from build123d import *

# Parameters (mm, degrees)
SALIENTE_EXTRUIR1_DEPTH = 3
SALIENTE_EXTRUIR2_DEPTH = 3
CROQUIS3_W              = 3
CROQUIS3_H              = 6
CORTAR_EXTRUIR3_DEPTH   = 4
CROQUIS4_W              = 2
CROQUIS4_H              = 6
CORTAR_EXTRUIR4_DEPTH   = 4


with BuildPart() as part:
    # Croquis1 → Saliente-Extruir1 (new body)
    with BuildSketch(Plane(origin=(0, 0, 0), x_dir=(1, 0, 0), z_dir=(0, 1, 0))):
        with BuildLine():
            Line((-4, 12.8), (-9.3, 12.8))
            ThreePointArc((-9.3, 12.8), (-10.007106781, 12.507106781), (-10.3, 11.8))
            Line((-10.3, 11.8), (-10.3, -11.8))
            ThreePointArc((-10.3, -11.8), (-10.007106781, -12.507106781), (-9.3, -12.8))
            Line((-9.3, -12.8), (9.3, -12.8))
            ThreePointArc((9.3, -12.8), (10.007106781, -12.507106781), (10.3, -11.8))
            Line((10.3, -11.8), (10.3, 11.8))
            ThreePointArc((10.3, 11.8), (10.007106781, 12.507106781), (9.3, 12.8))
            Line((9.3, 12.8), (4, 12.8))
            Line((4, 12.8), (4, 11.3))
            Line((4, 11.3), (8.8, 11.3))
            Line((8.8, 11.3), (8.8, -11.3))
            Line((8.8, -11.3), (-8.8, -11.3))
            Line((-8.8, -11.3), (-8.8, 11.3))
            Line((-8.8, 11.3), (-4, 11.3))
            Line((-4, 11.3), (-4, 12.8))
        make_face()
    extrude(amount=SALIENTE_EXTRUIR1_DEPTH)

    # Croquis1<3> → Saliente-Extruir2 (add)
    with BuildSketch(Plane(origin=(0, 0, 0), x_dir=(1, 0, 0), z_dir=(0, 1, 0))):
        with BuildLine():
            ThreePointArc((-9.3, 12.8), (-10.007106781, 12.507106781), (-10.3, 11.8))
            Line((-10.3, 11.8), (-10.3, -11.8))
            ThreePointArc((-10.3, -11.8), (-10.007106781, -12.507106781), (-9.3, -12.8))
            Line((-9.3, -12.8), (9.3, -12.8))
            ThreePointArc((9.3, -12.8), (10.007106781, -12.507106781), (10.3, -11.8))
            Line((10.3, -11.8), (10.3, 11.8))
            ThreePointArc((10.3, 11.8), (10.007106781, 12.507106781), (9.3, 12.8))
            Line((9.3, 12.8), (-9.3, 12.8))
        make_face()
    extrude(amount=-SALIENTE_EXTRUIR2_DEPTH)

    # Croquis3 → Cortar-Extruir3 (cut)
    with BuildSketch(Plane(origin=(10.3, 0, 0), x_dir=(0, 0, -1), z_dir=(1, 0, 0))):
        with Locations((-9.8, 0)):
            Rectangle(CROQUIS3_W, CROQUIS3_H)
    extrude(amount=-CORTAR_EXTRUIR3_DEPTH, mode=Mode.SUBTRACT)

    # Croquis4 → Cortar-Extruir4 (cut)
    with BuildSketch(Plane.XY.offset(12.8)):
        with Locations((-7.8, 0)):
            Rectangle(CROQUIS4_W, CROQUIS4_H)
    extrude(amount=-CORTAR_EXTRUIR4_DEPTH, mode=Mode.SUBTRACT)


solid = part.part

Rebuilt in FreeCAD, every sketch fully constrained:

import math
import FreeCAD as App
import Part
import Sketcher
from FreeCAD import Vector


def add_polygon(sketch, points):
    """Adds a closed chain of lines whose ends are joined by coincident constraints."""
    first, n = sketch.GeometryCount, len(points)
    for a, b in zip(points, points[1:] + points[:1]):
        sketch.addGeometry(Part.LineSegment(App.Vector(*a, 0), App.Vector(*b, 0)), False)
    for i in range(n):
        sketch.addConstraint(Sketcher.Constraint("Coincident", first + i, 2, first + (i + 1) % n, 1))

doc = App.newDocument("Part")
body = doc.addObject("PartDesign::Body", "Body")

# Sketch on XZ plane
sketch1 = body.newObject("Sketcher::SketchObject", "Sketch")
sketch1.AttachmentSupport = (doc.getObject("XZ_Plane"), [""])
sketch1.MapMode = "FlatFace"
sketch1.addGeometry([
    Part.LineSegment(Vector(-4, -12.8, 0), Vector(-9.3, -12.8, 0)),  # 0
    Part.ArcOfCircle(Part.Circle(Vector(-9.3, -11.8, 0), Vector(0, 0, 1), 1), math.radians(-180), math.radians(-90)),  # 1
    Part.LineSegment(Vector(-10.3, -11.8, 0), Vector(-10.3, 11.8, 0)),  # 2
    Part.ArcOfCircle(Part.Circle(Vector(-9.3, 11.8, 0), Vector(0, 0, 1), 1), math.radians(90), math.radians(180)),  # 3
    Part.LineSegment(Vector(-9.3, 12.8, 0), Vector(9.3, 12.8, 0)),  # 4
    Part.ArcOfCircle(Part.Circle(Vector(9.3, 11.8, 0), Vector(0, 0, 1), 1), math.radians(0), math.radians(90)),  # 5
    Part.LineSegment(Vector(10.3, 11.8, 0), Vector(10.3, -11.8, 0)),  # 6
    Part.ArcOfCircle(Part.Circle(Vector(9.3, -11.8, 0), Vector(0, 0, 1), 1), math.radians(-90), math.radians(0)),  # 7
    Part.LineSegment(Vector(9.3, -12.8, 0), Vector(4, -12.8, 0)),  # 8
    Part.LineSegment(Vector(4, -12.8, 0), Vector(4, -11.3, 0)),  # 9
    Part.LineSegment(Vector(4, -11.3, 0), Vector(8.8, -11.3, 0)),  # 10
    Part.LineSegment(Vector(8.8, -11.3, 0), Vector(8.8, 11.3, 0)),  # 11
    Part.LineSegment(Vector(8.8, 11.3, 0), Vector(-8.8, 11.3, 0)),  # 12
    Part.LineSegment(Vector(-8.8, 11.3, 0), Vector(-8.8, -11.3, 0)),  # 13
    Part.LineSegment(Vector(-8.8, -11.3, 0), Vector(-4, -11.3, 0)),  # 14
    Part.LineSegment(Vector(-4, -11.3, 0), Vector(-4, -12.8, 0)),  # 15
], False)
sketch1.addConstraint([
    Sketcher.Constraint("Tangent", 0, 2, 1, 2),
    Sketcher.Constraint("Tangent", 1, 1, 2, 1),
    Sketcher.Constraint("Tangent", 2, 2, 3, 2),
    Sketcher.Constraint("Tangent", 3, 1, 4, 1),
    Sketcher.Constraint("Tangent", 4, 2, 5, 2),
    Sketcher.Constraint("Tangent", 5, 1, 6, 1),
    Sketcher.Constraint("Tangent", 6, 2, 7, 2),
    Sketcher.Constraint("Tangent", 7, 1, 8, 1),
    Sketcher.Constraint("Coincident", 8, 2, 9, 1),
    Sketcher.Constraint("Coincident", 9, 2, 10, 1),
    Sketcher.Constraint("Coincident", 10, 2, 11, 1),
    Sketcher.Constraint("Coincident", 11, 2, 12, 1),
    Sketcher.Constraint("Coincident", 12, 2, 13, 1),
    Sketcher.Constraint("Coincident", 13, 2, 14, 1),
    Sketcher.Constraint("Coincident", 14, 2, 15, 1),
    Sketcher.Constraint("Coincident", 15, 2, 0, 1),
    Sketcher.Constraint("Horizontal", 0),
    Sketcher.Constraint("Vertical", 2),
    Sketcher.Constraint("Horizontal", 4),
    Sketcher.Constraint("Vertical", 6),
    Sketcher.Constraint("Horizontal", 8),
    Sketcher.Constraint("Vertical", 9),
    Sketcher.Constraint("Horizontal", 10),
    Sketcher.Constraint("Vertical", 11),
    Sketcher.Constraint("Horizontal", 12),
    Sketcher.Constraint("Vertical", 13),
    Sketcher.Constraint("Horizontal", 14),
    Sketcher.Constraint("Vertical", 15),
    Sketcher.Constraint("Equal", 1, 3),
    Sketcher.Constraint("Equal", 3, 5),
    Sketcher.Constraint("Equal", 5, 7),
    Sketcher.Constraint("Symmetric", 1, 3, 5, 3, -1, 1),
    Sketcher.Constraint("Symmetric", 10, 2, 12, 2, -1, 1),
    Sketcher.Constraint("Symmetric", 9, 2, 14, 2, -2),
    Sketcher.Constraint("Horizontal", 1, 3, 7, 3),
    Sketcher.Constraint("Radius", 1, 1.0),
    Sketcher.Constraint("DistanceX", 0, 2, 0, 1, 5.3),
    Sketcher.Constraint("DistanceX", 4, 1, 4, 2, 18.6),
    Sketcher.Constraint("DistanceX", 10, 1, 10, 2, 4.8),
    Sketcher.Constraint("DistanceY", 2, 1, 2, 2, 23.6),
    Sketcher.Constraint("DistanceY", 9, 1, 9, 2, 1.5),
])
pad1 = body.newObject("PartDesign::Pad", "Pad")
pad1.Profile = sketch1
pad1.Length = 3
pad1.Reversed = True

# Sketch on XZ plane
sketch2 = body.newObject("Sketcher::SketchObject", "Sketch001")
sketch2.AttachmentSupport = (doc.getObject("XZ_Plane"), [""])
sketch2.MapMode = "FlatFace"
sketch2.addGeometry([
    Part.ArcOfCircle(Part.Circle(Vector(-9.3, -11.8, 0), Vector(0, 0, 1), 1), math.radians(-180), math.radians(-90)),  # 0
    Part.LineSegment(Vector(-10.3, -11.8, 0), Vector(-10.3, 11.8, 0)),  # 1
    Part.ArcOfCircle(Part.Circle(Vector(-9.3, 11.8, 0), Vector(0, 0, 1), 1), math.radians(90), math.radians(180)),  # 2
    Part.LineSegment(Vector(-9.3, 12.8, 0), Vector(9.3, 12.8, 0)),  # 3
    Part.ArcOfCircle(Part.Circle(Vector(9.3, 11.8, 0), Vector(0, 0, 1), 1), math.radians(0), math.radians(90)),  # 4
    Part.LineSegment(Vector(10.3, 11.8, 0), Vector(10.3, -11.8, 0)),  # 5
    Part.ArcOfCircle(Part.Circle(Vector(9.3, -11.8, 0), Vector(0, 0, 1), 1), math.radians(-90), math.radians(0)),  # 6
    Part.LineSegment(Vector(9.3, -12.8, 0), Vector(-9.3, -12.8, 0)),  # 7
], False)
sketch2.addConstraint([
    Sketcher.Constraint("Tangent", 0, 1, 1, 1),
    Sketcher.Constraint("Tangent", 1, 2, 2, 2),
    Sketcher.Constraint("Tangent", 2, 1, 3, 1),
    Sketcher.Constraint("Tangent", 3, 2, 4, 2),
    Sketcher.Constraint("Tangent", 4, 1, 5, 1),
    Sketcher.Constraint("Tangent", 5, 2, 6, 2),
    Sketcher.Constraint("Tangent", 6, 1, 7, 1),
    Sketcher.Constraint("Tangent", 7, 2, 0, 2),
    Sketcher.Constraint("Vertical", 1),
    Sketcher.Constraint("Horizontal", 3),
    Sketcher.Constraint("Vertical", 5),
    Sketcher.Constraint("Horizontal", 7),
    Sketcher.Constraint("Equal", 0, 2),
    Sketcher.Constraint("Equal", 2, 4),
    Sketcher.Constraint("Equal", 4, 6),
    Sketcher.Constraint("Symmetric", 0, 3, 4, 3, -1, 1),
    Sketcher.Constraint("Radius", 0, 1.0),
    Sketcher.Constraint("DistanceX", 3, 1, 3, 2, 18.6),
    Sketcher.Constraint("DistanceY", 1, 1, 1, 2, 23.6),
])
pad2 = body.newObject("PartDesign::Pad", "Pad001")
pad2.Profile = sketch2
pad2.Length = 3

# Sketch on YZ plane
sketch3 = body.newObject("Sketcher::SketchObject", "Sketch002")
sketch3.AttachmentSupport = (doc.getObject("YZ_Plane"), [""])
sketch3.MapMode = "FlatFace"
sketch3.AttachmentOffset = App.Placement(Vector(0, 0, 10.3), App.Rotation())
add_polygon(sketch3, [(3, 11.3), (-3, 11.3), (-3, 8.3), (3, 8.3)])  # lines 0-3
sketch3.addConstraint([
    Sketcher.Constraint("Horizontal", 0),
    Sketcher.Constraint("Vertical", 1),
    Sketcher.Constraint("Horizontal", 2),
    Sketcher.Constraint("Vertical", 3),
    Sketcher.Constraint("DistanceX", 0, 2, 0, 1, 6.0),
    Sketcher.Constraint("DistanceY", 1, 2, 1, 1, 3.0),
    Sketcher.Constraint("DistanceX", 0, 2, -1, 1, 3.0),
    Sketcher.Constraint("DistanceY", -1, 1, 0, 2, 11.3),
])
pocket1 = body.newObject("PartDesign::Pocket", "Pocket")
pocket1.Profile = sketch3
pocket1.Length = 4

# Sketch on XY plane
sketch4 = body.newObject("Sketcher::SketchObject", "Sketch003")
sketch4.AttachmentSupport = (doc.getObject("XY_Plane"), [""])
sketch4.MapMode = "FlatFace"
sketch4.AttachmentOffset = App.Placement(Vector(0, 0, 12.8), App.Rotation())
add_polygon(sketch4, [(-8.8, 3), (-8.8, -3), (-6.8, -3), (-6.8, 3)])  # lines 0-3
sketch4.addConstraint([
    Sketcher.Constraint("Vertical", 0),
    Sketcher.Constraint("Horizontal", 1),
    Sketcher.Constraint("Vertical", 2),
    Sketcher.Constraint("Horizontal", 3),
    Sketcher.Constraint("DistanceX", 1, 1, 1, 2, 2.0),
    Sketcher.Constraint("DistanceY", 0, 2, 0, 1, 6.0),
    Sketcher.Constraint("DistanceY", 0, 2, -1, 1, 3.0),
    Sketcher.Constraint("DistanceX", 0, 2, -1, 1, 8.8),
])
pocket2 = body.newObject("PartDesign::Pocket", "Pocket001")
pocket2.Profile = sketch4
pocket2.Length = 4

doc.recompute()
